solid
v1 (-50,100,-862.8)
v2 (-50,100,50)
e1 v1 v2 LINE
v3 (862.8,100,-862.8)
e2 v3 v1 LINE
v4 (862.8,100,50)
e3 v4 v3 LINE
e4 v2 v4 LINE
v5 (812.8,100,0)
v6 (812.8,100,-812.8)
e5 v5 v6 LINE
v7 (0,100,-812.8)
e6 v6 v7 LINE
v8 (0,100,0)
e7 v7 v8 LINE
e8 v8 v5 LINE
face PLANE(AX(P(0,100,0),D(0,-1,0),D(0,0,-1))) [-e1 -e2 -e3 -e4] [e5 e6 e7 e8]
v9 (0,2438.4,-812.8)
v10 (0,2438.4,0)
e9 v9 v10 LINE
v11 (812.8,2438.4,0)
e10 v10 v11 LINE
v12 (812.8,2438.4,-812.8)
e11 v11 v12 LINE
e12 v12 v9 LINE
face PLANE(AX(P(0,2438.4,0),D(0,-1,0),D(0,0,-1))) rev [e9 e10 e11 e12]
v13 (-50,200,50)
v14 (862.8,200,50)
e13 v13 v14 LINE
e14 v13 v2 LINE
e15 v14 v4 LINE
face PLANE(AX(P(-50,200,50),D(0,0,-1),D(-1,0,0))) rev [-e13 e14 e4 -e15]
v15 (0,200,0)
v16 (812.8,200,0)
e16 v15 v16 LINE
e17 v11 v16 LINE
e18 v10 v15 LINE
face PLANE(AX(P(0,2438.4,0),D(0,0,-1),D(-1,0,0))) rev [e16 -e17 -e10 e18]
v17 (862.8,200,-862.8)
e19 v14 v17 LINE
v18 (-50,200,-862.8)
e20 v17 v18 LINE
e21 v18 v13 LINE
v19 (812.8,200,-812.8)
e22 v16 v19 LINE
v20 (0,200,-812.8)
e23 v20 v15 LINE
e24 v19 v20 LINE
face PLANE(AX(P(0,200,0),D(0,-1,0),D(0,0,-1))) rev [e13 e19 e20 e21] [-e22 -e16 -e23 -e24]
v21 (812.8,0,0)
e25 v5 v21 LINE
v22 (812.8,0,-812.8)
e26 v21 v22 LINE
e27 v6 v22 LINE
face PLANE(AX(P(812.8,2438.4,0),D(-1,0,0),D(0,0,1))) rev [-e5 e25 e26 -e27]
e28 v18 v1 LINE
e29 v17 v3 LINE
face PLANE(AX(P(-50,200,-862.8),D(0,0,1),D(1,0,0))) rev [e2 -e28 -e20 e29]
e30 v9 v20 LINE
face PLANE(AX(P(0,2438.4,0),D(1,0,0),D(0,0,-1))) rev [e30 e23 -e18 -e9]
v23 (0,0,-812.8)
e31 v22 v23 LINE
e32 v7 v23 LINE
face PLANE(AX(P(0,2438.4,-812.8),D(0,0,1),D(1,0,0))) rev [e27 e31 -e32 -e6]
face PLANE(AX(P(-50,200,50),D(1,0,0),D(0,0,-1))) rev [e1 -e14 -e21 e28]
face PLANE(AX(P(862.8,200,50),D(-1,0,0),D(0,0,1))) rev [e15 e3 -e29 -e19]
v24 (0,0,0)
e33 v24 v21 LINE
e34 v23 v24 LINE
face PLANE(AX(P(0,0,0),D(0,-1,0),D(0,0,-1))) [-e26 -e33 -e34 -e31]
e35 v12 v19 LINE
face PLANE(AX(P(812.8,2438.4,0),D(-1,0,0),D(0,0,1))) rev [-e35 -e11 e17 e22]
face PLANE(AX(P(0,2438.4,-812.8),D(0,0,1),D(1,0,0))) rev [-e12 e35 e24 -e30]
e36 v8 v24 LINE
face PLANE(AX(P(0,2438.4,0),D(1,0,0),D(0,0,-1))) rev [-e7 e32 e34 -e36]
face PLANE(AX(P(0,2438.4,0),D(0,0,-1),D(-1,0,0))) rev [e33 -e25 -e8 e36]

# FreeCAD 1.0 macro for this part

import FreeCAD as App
import Part
import Sketcher

V = App.Vector


def add_polygon(sketch, points):
    """Adds a closed chain of lines whose ends are joined by coincident constraints."""
    first, n = sketch.GeometryCount, len(points)
    for a, b in zip(points, points[1:] + points[:1]):
        sketch.addGeometry(Part.LineSegment(App.Vector(*a, 0), App.Vector(*b, 0)), False)
    for i in range(n):
        sketch.addConstraint(Sketcher.Constraint("Coincident", first + i, 2, first + (i + 1) % n, 1))

doc = App.newDocument("Part")
body = doc.addObject("PartDesign::Body", "Body")

sketch1 = doc.addObject("Sketcher::SketchObject", "Sketch")
body.addObject(sketch1)
sketch1.AttachmentSupport = (doc.XZ_Plane, [""])
sketch1.MapMode = "FlatFace"
add_polygon(sketch1, [(0, -813), (0, 0), (813, 0), (813, -813)])
sketch1.addConstraint(Sketcher.Constraint("Vertical", 0))
sketch1.addConstraint(Sketcher.Constraint("Horizontal", 1))
sketch1.addConstraint(Sketcher.Constraint("Vertical", 2))
sketch1.addConstraint(Sketcher.Constraint("Horizontal", 3))
sketch1.addConstraint(Sketcher.Constraint("Coincident", 0, 2, -1, 1))
sketch1.addConstraint(Sketcher.Constraint("Equal", 3, 0))
sketch1.addConstraint(Sketcher.Constraint("DistanceX", 1, 1, 1, 2, 812.8))
pad1 = doc.addObject("PartDesign::Pad", "Pad")
body.addObject(pad1)
pad1.Profile = sketch1
pad1.Length = 2438.4
pad1.Reversed = True

sketch2 = doc.addObject("Sketcher::SketchObject", "Sketch001")
body.addObject(sketch2)
sketch2.AttachmentSupport = (doc.XZ_Plane, [""])
sketch2.MapMode = "FlatFace"
sketch2.AttachmentOffset = App.Placement(V(0, 0, -100), App.Rotation())
add_polygon(sketch2, [(-50, -863), (-50, 50), (863, 50), (863, -863)])
add_polygon(sketch2, [(813, 0), (0, 0), (0, -813), (813, -813)])
sketch2.addConstraint(Sketcher.Constraint("Vertical", 0))
sketch2.addConstraint(Sketcher.Constraint("Horizontal", 1))
sketch2.addConstraint(Sketcher.Constraint("Vertical", 2))
sketch2.addConstraint(Sketcher.Constraint("Horizontal", 3))
sketch2.addConstraint(Sketcher.Constraint("Horizontal", 4))
sketch2.addConstraint(Sketcher.Constraint("Vertical", 5))
sketch2.addConstraint(Sketcher.Constraint("Horizontal", 6))
sketch2.addConstraint(Sketcher.Constraint("Vertical", 7))
sketch2.addConstraint(Sketcher.Constraint("Coincident", 4, 2, -1, 1))
sketch2.addConstraint(Sketcher.Constraint("Equal", 3, 0))
sketch2.addConstraint(Sketcher.Constraint("Equal", 6, 5))
sketch2.addConstraint(Sketcher.Constraint("DistanceX", 1, 1, 1, 2, 912.8))
sketch2.addConstraint(Sketcher.Constraint("DistanceX", 4, 2, 4, 1, 812.8))
sketch2.addConstraint(Sketcher.Constraint("DistanceX", 0, 2, -1, 1, 50.0))
sketch2.addConstraint(Sketcher.Constraint("DistanceY", -1, 1, 0, 2, 50.0))
pad2 = doc.addObject("PartDesign::Pad", "Pad001")
body.addObject(pad2)
pad2.Profile = sketch2
pad2.Length = 100
pad2.Reversed = True

doc.recompute()
